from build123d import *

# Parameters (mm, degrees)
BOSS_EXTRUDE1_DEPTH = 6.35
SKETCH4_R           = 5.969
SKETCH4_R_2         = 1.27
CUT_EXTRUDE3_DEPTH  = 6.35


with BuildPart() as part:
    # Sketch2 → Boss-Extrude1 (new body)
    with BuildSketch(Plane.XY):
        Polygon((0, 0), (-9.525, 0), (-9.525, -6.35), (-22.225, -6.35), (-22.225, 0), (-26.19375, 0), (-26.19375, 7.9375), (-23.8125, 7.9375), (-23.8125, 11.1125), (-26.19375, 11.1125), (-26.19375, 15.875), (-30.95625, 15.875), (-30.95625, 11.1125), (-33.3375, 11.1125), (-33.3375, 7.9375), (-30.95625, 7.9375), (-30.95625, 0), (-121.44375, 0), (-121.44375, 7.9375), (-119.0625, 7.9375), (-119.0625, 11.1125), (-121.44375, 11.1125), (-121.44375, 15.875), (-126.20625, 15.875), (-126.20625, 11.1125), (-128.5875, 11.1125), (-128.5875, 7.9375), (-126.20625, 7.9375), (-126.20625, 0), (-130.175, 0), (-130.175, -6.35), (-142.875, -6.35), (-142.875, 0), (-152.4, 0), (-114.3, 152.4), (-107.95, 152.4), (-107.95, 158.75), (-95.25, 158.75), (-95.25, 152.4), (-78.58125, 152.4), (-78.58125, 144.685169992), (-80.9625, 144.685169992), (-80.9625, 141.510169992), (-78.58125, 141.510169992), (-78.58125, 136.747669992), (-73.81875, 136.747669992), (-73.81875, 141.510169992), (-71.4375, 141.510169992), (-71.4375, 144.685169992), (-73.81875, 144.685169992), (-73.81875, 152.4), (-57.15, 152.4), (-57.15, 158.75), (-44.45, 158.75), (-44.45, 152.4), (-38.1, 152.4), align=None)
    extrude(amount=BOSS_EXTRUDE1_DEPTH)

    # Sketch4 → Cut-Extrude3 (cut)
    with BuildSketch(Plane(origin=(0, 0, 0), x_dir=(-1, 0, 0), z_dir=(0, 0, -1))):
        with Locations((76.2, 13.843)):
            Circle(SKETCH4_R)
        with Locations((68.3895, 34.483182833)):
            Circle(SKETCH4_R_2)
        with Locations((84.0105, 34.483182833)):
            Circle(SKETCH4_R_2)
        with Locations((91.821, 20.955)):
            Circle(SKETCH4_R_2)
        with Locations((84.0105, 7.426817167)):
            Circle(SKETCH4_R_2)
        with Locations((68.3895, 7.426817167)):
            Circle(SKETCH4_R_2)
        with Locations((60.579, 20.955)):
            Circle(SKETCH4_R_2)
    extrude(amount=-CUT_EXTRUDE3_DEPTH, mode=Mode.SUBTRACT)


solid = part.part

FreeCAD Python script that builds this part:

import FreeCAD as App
import Part
import Sketcher

V = App.Vector
Q = App.Units.Quantity

doc = App.newDocument("Part")
body = doc.addObject("PartDesign::Body", "Body")

sketch1 = body.newObject("Sketcher::SketchObject", "Sketch")
sketch1.AttachmentSupport = (doc.getObject("XY_Plane"), [""])
sketch1.MapMode = "FlatFace"
sketch1.addGeometry([
    Part.LineSegment(V(-9.5, 0, 0), V(0, 0, 0)),
    Part.LineSegment(V(0, 0, 0), V(-38.1, 152.4, 0)),
    Part.LineSegment(V(-38.1, 152.4, 0), V(-44.5, 152.4, 0)),
    Part.LineSegment(V(-44.5, 152.4, 0), V(-44.5, 158.8, 0)),
    Part.LineSegment(V(-44.5, 158.8, 0), V(-57.1, 158.8, 0)),
    Part.LineSegment(V(-57.1, 158.8, 0), V(-57.1, 152.4, 0)),
    Part.LineSegment(V(-57.1, 152.4, 0), V(-73.8, 152.4, 0)),
    Part.LineSegment(V(-73.8, 152.4, 0), V(-73.8, 144.7, 0)),
    Part.LineSegment(V(-73.8, 144.7, 0), V(-71.4, 144.7, 0)),
    Part.LineSegment(V(-71.4, 144.7, 0), V(-71.4, 141.5, 0)),
    Part.LineSegment(V(-71.4, 141.5, 0), V(-73.8, 141.5, 0)),
    Part.LineSegment(V(-73.8, 141.5, 0), V(-73.8, 136.7, 0)),
    Part.LineSegment(V(-73.8, 136.7, 0), V(-78.6, 136.7, 0)),
    Part.LineSegment(V(-78.6, 136.7, 0), V(-78.6, 141.5, 0)),
    Part.LineSegment(V(-78.6, 141.5, 0), V(-81, 141.5, 0)),
    Part.LineSegment(V(-81, 141.5, 0), V(-81, 144.7, 0)),
    Part.LineSegment(V(-81, 144.7, 0), V(-78.6, 144.7, 0)),
    Part.LineSegment(V(-78.6, 144.7, 0), V(-78.6, 152.4, 0)),
    Part.LineSegment(V(-78.6, 152.4, 0), V(-95.2, 152.4, 0)),
    Part.LineSegment(V(-95.2, 152.4, 0), V(-95.2, 158.8, 0)),
    Part.LineSegment(V(-95.2, 158.8, 0), V(-108, 158.8, 0)),
    Part.LineSegment(V(-108, 158.8, 0), V(-108, 152.4, 0)),
    Part.LineSegment(V(-108, 152.4, 0), V(-114.3, 152.4, 0)),
    Part.LineSegment(V(-114.3, 152.4, 0), V(-152.4, 0, 0)),
    Part.LineSegment(V(-152.4, 0, 0), V(-142.9, 0, 0)),
    Part.LineSegment(V(-142.9, 0, 0), V(-142.9, -6.3, 0)),
    Part.LineSegment(V(-142.9, -6.3, 0), V(-130.2, -6.3, 0)),
    Part.LineSegment(V(-130.2, -6.3, 0), V(-130.2, 0, 0)),
    Part.LineSegment(V(-130.2, 0, 0), V(-126.2, 0, 0)),
    Part.LineSegment(V(-126.2, 0, 0), V(-126.2, 7.9, 0)),
    Part.LineSegment(V(-126.2, 7.9, 0), V(-128.6, 7.9, 0)),
    Part.LineSegment(V(-128.6, 7.9, 0), V(-128.6, 11.1, 0)),
    Part.LineSegment(V(-128.6, 11.1, 0), V(-126.2, 11.1, 0)),
    Part.LineSegment(V(-126.2, 11.1, 0), V(-126.2, 15.9, 0)),
    Part.LineSegment(V(-126.2, 15.9, 0), V(-121.4, 15.9, 0)),
    Part.LineSegment(V(-121.4, 15.9, 0), V(-121.4, 11.1, 0)),
    Part.LineSegment(V(-121.4, 11.1, 0), V(-119.1, 11.1, 0)),
    Part.LineSegment(V(-119.1, 11.1, 0), V(-119.1, 7.9, 0)),
    Part.LineSegment(V(-119.1, 7.9, 0), V(-121.4, 7.9, 0)),
    Part.LineSegment(V(-121.4, 7.9, 0), V(-121.4, 0, 0)),
    Part.LineSegment(V(-121.4, 0, 0), V(-31, 0, 0)),
    Part.LineSegment(V(-31, 0, 0), V(-31, 7.9, 0)),
    Part.LineSegment(V(-31, 7.9, 0), V(-33.3, 7.9, 0)),
    Part.LineSegment(V(-33.3, 7.9, 0), V(-33.3, 11.1, 0)),
    Part.LineSegment(V(-33.3, 11.1, 0), V(-31, 11.1, 0)),
    Part.LineSegment(V(-31, 11.1, 0), V(-31, 15.9, 0)),
    Part.LineSegment(V(-31, 15.9, 0), V(-26.2, 15.9, 0)),
    Part.LineSegment(V(-26.2, 15.9, 0), V(-26.2, 11.1, 0)),
    Part.LineSegment(V(-26.2, 11.1, 0), V(-23.8, 11.1, 0)),
    Part.LineSegment(V(-23.8, 11.1, 0), V(-23.8, 7.9, 0)),
    Part.LineSegment(V(-23.8, 7.9, 0), V(-26.2, 7.9, 0)),
    Part.LineSegment(V(-26.2, 7.9, 0), V(-26.2, 0, 0)),
    Part.LineSegment(V(-26.2, 0, 0), V(-22.2, 0, 0)),
    Part.LineSegment(V(-22.2, 0, 0), V(-22.2, -6.3, 0)),
    Part.LineSegment(V(-22.2, -6.3, 0), V(-9.5, -6.3, 0)),
    Part.LineSegment(V(-9.5, -6.3, 0), V(-9.5, 0, 0)),
], False)
sketch1.addConstraint([
    Sketcher.Constraint("Coincident", 0, 2, 1, 1),
    Sketcher.Constraint("Coincident", 1, 2, 2, 1),
    Sketcher.Constraint("Coincident", 2, 2, 3, 1),
    Sketcher.Constraint("Coincident", 3, 2, 4, 1),
    Sketcher.Constraint("Coincident", 4, 2, 5, 1),
    Sketcher.Constraint("Coincident", 5, 2, 6, 1),
    Sketcher.Constraint("Coincident", 6, 2, 7, 1),
    Sketcher.Constraint("Coincident", 7, 2, 8, 1),
    Sketcher.Constraint("Coincident", 8, 2, 9, 1),
    Sketcher.Constraint("Coincident", 9, 2, 10, 1),
    Sketcher.Constraint("Coincident", 10, 2, 11, 1),
    Sketcher.Constraint("Coincident", 11, 2, 12, 1),
    Sketcher.Constraint("Coincident", 12, 2, 13, 1),
    Sketcher.Constraint("Coincident", 13, 2, 14, 1),
    Sketcher.Constraint("Coincident", 14, 2, 15, 1),
    Sketcher.Constraint("Coincident", 15, 2, 16, 1),
    Sketcher.Constraint("Coincident", 16, 2, 17, 1),
    Sketcher.Constraint("Coincident", 17, 2, 18, 1),
    Sketcher.Constraint("Coincident", 18, 2, 19, 1),
    Sketcher.Constraint("Coincident", 19, 2, 20, 1),
    Sketcher.Constraint("Coincident", 20, 2, 21, 1),
    Sketcher.Constraint("Coincident", 21, 2, 22, 1),
    Sketcher.Constraint("Coincident", 22, 2, 23, 1),
    Sketcher.Constraint("Coincident", 23, 2, 24, 1),
    Sketcher.Constraint("Coincident", 24, 2, 25, 1),
    Sketcher.Constraint("Coincident", 25, 2, 26, 1),
    Sketcher.Constraint("Coincident", 26, 2, 27, 1),
    Sketcher.Constraint("Coincident", 27, 2, 28, 1),
    Sketcher.Constraint("Coincident", 28, 2, 29, 1),
    Sketcher.Constraint("Coincident", 29, 2, 30, 1),
    Sketcher.Constraint("Coincident", 30, 2, 31, 1),
    Sketcher.Constraint("Coincident", 31, 2, 32, 1),
    Sketcher.Constraint("Coincident", 32, 2, 33, 1),
    Sketcher.Constraint("Coincident", 33, 2, 34, 1),
    Sketcher.Constraint("Coincident", 34, 2, 35, 1),
    Sketcher.Constraint("Coincident", 35, 2, 36, 1),
    Sketcher.Constraint("Coincident", 36, 2, 37, 1),
    Sketcher.Constraint("Coincident", 37, 2, 38, 1),
    Sketcher.Constraint("Coincident", 38, 2, 39, 1),
    Sketcher.Constraint("Coincident", 39, 2, 40, 1),
    Sketcher.Constraint("Coincident", 40, 2, 41, 1),
    Sketcher.Constraint("Coincident", 41, 2, 42, 1),
    Sketcher.Constraint("Coincident", 42, 2, 43, 1),
    Sketcher.Constraint("Coincident", 43, 2, 44, 1),
    Sketcher.Constraint("Coincident", 44, 2, 45, 1),
    Sketcher.Constraint("Coincident", 45, 2, 46, 1),
    Sketcher.Constraint("Coincident", 46, 2, 47, 1),
    Sketcher.Constraint("Coincident", 47, 2, 48, 1),
    Sketcher.Constraint("Coincident", 48, 2, 49, 1),
    Sketcher.Constraint("Coincident", 49, 2, 50, 1),
    Sketcher.Constraint("Coincident", 50, 2, 51, 1),
    Sketcher.Constraint("Coincident", 51, 2, 52, 1),
    Sketcher.Constraint("Coincident", 52, 2, 53, 1),
    Sketcher.Constraint("Coincident", 53, 2, 54, 1),
    Sketcher.Constraint("Coincident", 54, 2, 55, 1),
    Sketcher.Constraint("Coincident", 55, 2, 0, 1),
    Sketcher.Constraint("Horizontal", 0),
    Sketcher.Constraint("Horizontal", 2),
    Sketcher.Constraint("Vertical", 3),
    Sketcher.Constraint("Horizontal", 4),
    Sketcher.Constraint("Vertical", 5),
    Sketcher.Constraint("Horizontal", 6),
    Sketcher.Constraint("Vertical", 7),
    Sketcher.Constraint("Horizontal", 8),
    Sketcher.Constraint("Vertical", 9),
    Sketcher.Constraint("Horizontal", 10),
    Sketcher.Constraint("Vertical", 11),
    Sketcher.Constraint("Horizontal", 12),
    Sketcher.Constraint("Vertical", 13),
    Sketcher.Constraint("Horizontal", 14),
    Sketcher.Constraint("Vertical", 15),
    Sketcher.Constraint("Horizontal", 16),
    Sketcher.Constraint("Vertical", 17),
    Sketcher.Constraint("Horizontal", 18),
    Sketcher.Constraint("Vertical", 19),
    Sketcher.Constraint("Horizontal", 20),
    Sketcher.Constraint("Vertical", 21),
    Sketcher.Constraint("Horizontal", 22),
    Sketcher.Constraint("Horizontal", 24),
    Sketcher.Constraint("Vertical", 25),
    Sketcher.Constraint("Horizontal", 26),
    Sketcher.Constraint("Vertical", 27),
    Sketcher.Constraint("Horizontal", 28),
    Sketcher.Constraint("Vertical", 29),
    Sketcher.Constraint("Horizontal", 30),
    Sketcher.Constraint("Vertical", 31),
    Sketcher.Constraint("Horizontal", 32),
    Sketcher.Constraint("Vertical", 33),
    Sketcher.Constraint("Horizontal", 34),
    Sketcher.Constraint("Vertical", 35),
    Sketcher.Constraint("Horizontal", 36),
    Sketcher.Constraint("Vertical", 37),
    Sketcher.Constraint("Horizontal", 38),
    Sketcher.Constraint("Vertical", 39),
    Sketcher.Constraint("Horizontal", 40),
    Sketcher.Constraint("Vertical", 41),
    Sketcher.Constraint("Horizontal", 42),
    Sketcher.Constraint("Vertical", 43),
    Sketcher.Constraint("Horizontal", 44),
    Sketcher.Constraint("Vertical", 45),
    Sketcher.Constraint("Horizontal", 46),
    Sketcher.Constraint("Vertical", 47),
    Sketcher.Constraint("Horizontal", 48),
    Sketcher.Constraint("Vertical", 49),
    Sketcher.Constraint("Horizontal", 50),
    Sketcher.Constraint("Vertical", 51),
    Sketcher.Constraint("Horizontal", 52),
    Sketcher.Constraint("Vertical", 53),
    Sketcher.Constraint("Horizontal", 54),
    Sketcher.Constraint("Vertical", 55),
    Sketcher.Constraint("Coincident", 0, 2, -1, 1),
    Sketcher.Constraint("PointOnObject", 23, 2, -1),
    Sketcher.Constraint("PointOnObject", 27, 2, -1),
    Sketcher.Constraint("PointOnObject", 39, 2, -1),
    Sketcher.Constraint("PointOnObject", 51, 2, -1),
    Sketcher.Constraint("Horizontal", 2, 2, 5, 2),
    Sketcher.Constraint("Horizontal", 10, 2, 13, 2),
    Sketcher.Constraint("Horizontal", 8, 2, 15, 2),
    Sketcher.Constraint("Horizontal", 6, 2, 17, 2),
    Sketcher.Constraint("Horizontal", 4, 2, 19, 2),
    Sketcher.Constraint("Horizontal", 18, 2, 21, 2),
    Sketcher.Constraint("Horizontal", 32, 2, 35, 2),
    Sketcher.Constraint("Horizontal", 30, 2, 37, 2),
    Sketcher.Constraint("Horizontal", 38, 2, 41, 2),
    Sketcher.Constraint("Horizontal", 36, 2, 43, 2),
    Sketcher.Constraint("Horizontal", 34, 2, 45, 2),
    Sketcher.Constraint("Horizontal", 44, 2, 47, 2),
    Sketcher.Constraint("Horizontal", 42, 2, 49, 2),
    Sketcher.Constraint("Horizontal", 26, 2, 53, 2),
    Sketcher.Constraint("Vertical", 7, 2, 10, 2),
    Sketcher.Constraint("Vertical", 13, 2, 16, 2),
    Sketcher.Constraint("Vertical", 29, 2, 32, 2),
    Sketcher.Constraint("Vertical", 35, 2, 38, 2),
    Sketcher.Constraint("Vertical", 41, 2, 44, 2),
    Sketcher.Constraint("Vertical", 47, 2, 50, 2),
    Sketcher.Constraint("Equal", 10, 14),
    Sketcher.Constraint("Equal", 6, 18),
    Sketcher.Constraint("Equal", 4, 20),
    Sketcher.Constraint("Equal", 2, 22),
    Sketcher.Constraint("Equal", 0, 24),
    Sketcher.Constraint("Equal", 20, 26),
    Sketcher.Constraint("Equal", 16, 30),
    Sketcher.Constraint("Equal", 12, 34),
    Sketcher.Constraint("Equal", 32, 36),
    Sketcher.Constraint("Equal", 38, 42),
    Sketcher.Constraint("Equal", 34, 46),
    Sketcher.Constraint("Equal", 44, 48),
    Sketcher.Constraint("Equal", 28, 52),
    Sketcher.Constraint("Equal", 26, 54),
    Sketcher.Constraint("Equal", 22, 3),
    Sketcher.Constraint("Equal", 46, 11),
    Sketcher.Constraint("Equal", 21, 25),
    Sketcher.Constraint("Equal", 15, 31),
    Sketcher.Constraint("Equal", 13, 33),
    Sketcher.Constraint("Equal", 1, 23),
    Sketcher.Constraint("DistanceX", 4, 2, 4, 1, Q("0.5 in")),
    Sketcher.Constraint("DistanceY", -1, 1, 1, 2, Q("6 in")),
    Sketcher.Constraint("DistanceX", 23, 2, -1, 1, Q("6 in")),
    Sketcher.Constraint("DistanceX", 2, 2, 2, 1, Q("0.25 in")),
    Sketcher.Constraint("DistanceX", 1, 2, -1, 1, Q("1.5 in")),
    Sketcher.Constraint("DistanceX", 0, 1, 0, 2, Q("0.375 in")),
    Sketcher.Constraint("DistanceX", 6, 2, 6, 1, Q("0.65625 in")),
    Sketcher.Constraint("DistanceX", 8, 1, 8, 2, Q("0.09375 in")),
    Sketcher.Constraint("DistanceX", 28, 1, 28, 2, Q("0.15625 in")),
    Sketcher.Constraint("DistanceY", 9, 2, 9, 1, Q("0.125 in")),
    Sketcher.Constraint("DistanceY", 29, 1, 29, 2, Q("0.3125 in")),
    Sketcher.Constraint("DistanceY", 7, 2, 7, 1, 7.71483),
])
pad1 = body.newObject("PartDesign::Pad", "Pad")
pad1.Profile = sketch1
pad1.Length = Q("0.25 in")

sketch2 = body.newObject("Sketcher::SketchObject", "Sketch001")
sketch2.AttachmentSupport = (doc.getObject("XY_Plane"), [""])
sketch2.MapMode = "FlatFace"
sketch2.addGeometry([
    Part.Circle(V(-76.2, 13.8, 0), V(0, 0, 1), 6),
    Part.Circle(V(-68.4, 34.5, 0), V(0, 0, 1), 1.3),
    Part.Circle(V(-84, 34.5, 0), V(0, 0, 1), 1.3),
    Part.Circle(V(-91.8, 21, 0), V(0, 0, 1), 1.3),
    Part.Circle(V(-84, 7.4, 0), V(0, 0, 1), 1.3),
    Part.Circle(V(-68.4, 7.4, 0), V(0, 0, 1), 1.3),
    Part.Circle(V(-60.6, 21, 0), V(0, 0, 1), 1.3),
], False)
sketch2.addConstraint([
    Sketcher.Constraint("Equal", 1, 2),
    Sketcher.Constraint("Equal", 2, 3),
    Sketcher.Constraint("Equal", 3, 4),
    Sketcher.Constraint("Equal", 4, 5),
    Sketcher.Constraint("Equal", 5, 6),
    Sketcher.Constraint("Horizontal", 1, 3, 2, 3),
    Sketcher.Constraint("Horizontal", 4, 3, 5, 3),
    Sketcher.Constraint("Horizontal", 3, 3, 6, 3),
    Sketcher.Constraint("Vertical", 2, 3, 4, 3),
    Sketcher.Constraint("Vertical", 1, 3, 5, 3),
    Sketcher.Constraint("Diameter", 1, Q("0.1 in")),
    Sketcher.Constraint("Diameter", 0, Q("0.47 in")),
    Sketcher.Constraint("DistanceX", 0, 3, -1, 1, Q("3 in")),
    Sketcher.Constraint("DistanceY", 0, 3, 3, 3, Q("0.28 in")),
    Sketcher.Constraint("DistanceY", -1, 1, 0, 3, Q("0.545 in")),
    Sketcher.Constraint("DistanceX", 3, 3, -1, 1, Q("3.615 in")),
    Sketcher.Constraint("DistanceX", 6, 3, -1, 1, Q("2.385 in")),
    Sketcher.Constraint("DistanceX", 2, 3, 1, 3, Q("0.615 in")),
    Sketcher.Constraint("DistanceX", 1, 3, -1, 1, Q("2.6925 in")),
    Sketcher.Constraint("DistanceY", -1, 1, 1, 3, 34.483183),
    Sketcher.Constraint("DistanceY", -1, 1, 4, 3, 7.426817),
])
pocket1 = body.newObject("PartDesign::Pocket", "Pocket")
pocket1.Profile = sketch2
pocket1.Length = Q("0.25 in")
pocket1.Reversed = True

doc.recompute()
